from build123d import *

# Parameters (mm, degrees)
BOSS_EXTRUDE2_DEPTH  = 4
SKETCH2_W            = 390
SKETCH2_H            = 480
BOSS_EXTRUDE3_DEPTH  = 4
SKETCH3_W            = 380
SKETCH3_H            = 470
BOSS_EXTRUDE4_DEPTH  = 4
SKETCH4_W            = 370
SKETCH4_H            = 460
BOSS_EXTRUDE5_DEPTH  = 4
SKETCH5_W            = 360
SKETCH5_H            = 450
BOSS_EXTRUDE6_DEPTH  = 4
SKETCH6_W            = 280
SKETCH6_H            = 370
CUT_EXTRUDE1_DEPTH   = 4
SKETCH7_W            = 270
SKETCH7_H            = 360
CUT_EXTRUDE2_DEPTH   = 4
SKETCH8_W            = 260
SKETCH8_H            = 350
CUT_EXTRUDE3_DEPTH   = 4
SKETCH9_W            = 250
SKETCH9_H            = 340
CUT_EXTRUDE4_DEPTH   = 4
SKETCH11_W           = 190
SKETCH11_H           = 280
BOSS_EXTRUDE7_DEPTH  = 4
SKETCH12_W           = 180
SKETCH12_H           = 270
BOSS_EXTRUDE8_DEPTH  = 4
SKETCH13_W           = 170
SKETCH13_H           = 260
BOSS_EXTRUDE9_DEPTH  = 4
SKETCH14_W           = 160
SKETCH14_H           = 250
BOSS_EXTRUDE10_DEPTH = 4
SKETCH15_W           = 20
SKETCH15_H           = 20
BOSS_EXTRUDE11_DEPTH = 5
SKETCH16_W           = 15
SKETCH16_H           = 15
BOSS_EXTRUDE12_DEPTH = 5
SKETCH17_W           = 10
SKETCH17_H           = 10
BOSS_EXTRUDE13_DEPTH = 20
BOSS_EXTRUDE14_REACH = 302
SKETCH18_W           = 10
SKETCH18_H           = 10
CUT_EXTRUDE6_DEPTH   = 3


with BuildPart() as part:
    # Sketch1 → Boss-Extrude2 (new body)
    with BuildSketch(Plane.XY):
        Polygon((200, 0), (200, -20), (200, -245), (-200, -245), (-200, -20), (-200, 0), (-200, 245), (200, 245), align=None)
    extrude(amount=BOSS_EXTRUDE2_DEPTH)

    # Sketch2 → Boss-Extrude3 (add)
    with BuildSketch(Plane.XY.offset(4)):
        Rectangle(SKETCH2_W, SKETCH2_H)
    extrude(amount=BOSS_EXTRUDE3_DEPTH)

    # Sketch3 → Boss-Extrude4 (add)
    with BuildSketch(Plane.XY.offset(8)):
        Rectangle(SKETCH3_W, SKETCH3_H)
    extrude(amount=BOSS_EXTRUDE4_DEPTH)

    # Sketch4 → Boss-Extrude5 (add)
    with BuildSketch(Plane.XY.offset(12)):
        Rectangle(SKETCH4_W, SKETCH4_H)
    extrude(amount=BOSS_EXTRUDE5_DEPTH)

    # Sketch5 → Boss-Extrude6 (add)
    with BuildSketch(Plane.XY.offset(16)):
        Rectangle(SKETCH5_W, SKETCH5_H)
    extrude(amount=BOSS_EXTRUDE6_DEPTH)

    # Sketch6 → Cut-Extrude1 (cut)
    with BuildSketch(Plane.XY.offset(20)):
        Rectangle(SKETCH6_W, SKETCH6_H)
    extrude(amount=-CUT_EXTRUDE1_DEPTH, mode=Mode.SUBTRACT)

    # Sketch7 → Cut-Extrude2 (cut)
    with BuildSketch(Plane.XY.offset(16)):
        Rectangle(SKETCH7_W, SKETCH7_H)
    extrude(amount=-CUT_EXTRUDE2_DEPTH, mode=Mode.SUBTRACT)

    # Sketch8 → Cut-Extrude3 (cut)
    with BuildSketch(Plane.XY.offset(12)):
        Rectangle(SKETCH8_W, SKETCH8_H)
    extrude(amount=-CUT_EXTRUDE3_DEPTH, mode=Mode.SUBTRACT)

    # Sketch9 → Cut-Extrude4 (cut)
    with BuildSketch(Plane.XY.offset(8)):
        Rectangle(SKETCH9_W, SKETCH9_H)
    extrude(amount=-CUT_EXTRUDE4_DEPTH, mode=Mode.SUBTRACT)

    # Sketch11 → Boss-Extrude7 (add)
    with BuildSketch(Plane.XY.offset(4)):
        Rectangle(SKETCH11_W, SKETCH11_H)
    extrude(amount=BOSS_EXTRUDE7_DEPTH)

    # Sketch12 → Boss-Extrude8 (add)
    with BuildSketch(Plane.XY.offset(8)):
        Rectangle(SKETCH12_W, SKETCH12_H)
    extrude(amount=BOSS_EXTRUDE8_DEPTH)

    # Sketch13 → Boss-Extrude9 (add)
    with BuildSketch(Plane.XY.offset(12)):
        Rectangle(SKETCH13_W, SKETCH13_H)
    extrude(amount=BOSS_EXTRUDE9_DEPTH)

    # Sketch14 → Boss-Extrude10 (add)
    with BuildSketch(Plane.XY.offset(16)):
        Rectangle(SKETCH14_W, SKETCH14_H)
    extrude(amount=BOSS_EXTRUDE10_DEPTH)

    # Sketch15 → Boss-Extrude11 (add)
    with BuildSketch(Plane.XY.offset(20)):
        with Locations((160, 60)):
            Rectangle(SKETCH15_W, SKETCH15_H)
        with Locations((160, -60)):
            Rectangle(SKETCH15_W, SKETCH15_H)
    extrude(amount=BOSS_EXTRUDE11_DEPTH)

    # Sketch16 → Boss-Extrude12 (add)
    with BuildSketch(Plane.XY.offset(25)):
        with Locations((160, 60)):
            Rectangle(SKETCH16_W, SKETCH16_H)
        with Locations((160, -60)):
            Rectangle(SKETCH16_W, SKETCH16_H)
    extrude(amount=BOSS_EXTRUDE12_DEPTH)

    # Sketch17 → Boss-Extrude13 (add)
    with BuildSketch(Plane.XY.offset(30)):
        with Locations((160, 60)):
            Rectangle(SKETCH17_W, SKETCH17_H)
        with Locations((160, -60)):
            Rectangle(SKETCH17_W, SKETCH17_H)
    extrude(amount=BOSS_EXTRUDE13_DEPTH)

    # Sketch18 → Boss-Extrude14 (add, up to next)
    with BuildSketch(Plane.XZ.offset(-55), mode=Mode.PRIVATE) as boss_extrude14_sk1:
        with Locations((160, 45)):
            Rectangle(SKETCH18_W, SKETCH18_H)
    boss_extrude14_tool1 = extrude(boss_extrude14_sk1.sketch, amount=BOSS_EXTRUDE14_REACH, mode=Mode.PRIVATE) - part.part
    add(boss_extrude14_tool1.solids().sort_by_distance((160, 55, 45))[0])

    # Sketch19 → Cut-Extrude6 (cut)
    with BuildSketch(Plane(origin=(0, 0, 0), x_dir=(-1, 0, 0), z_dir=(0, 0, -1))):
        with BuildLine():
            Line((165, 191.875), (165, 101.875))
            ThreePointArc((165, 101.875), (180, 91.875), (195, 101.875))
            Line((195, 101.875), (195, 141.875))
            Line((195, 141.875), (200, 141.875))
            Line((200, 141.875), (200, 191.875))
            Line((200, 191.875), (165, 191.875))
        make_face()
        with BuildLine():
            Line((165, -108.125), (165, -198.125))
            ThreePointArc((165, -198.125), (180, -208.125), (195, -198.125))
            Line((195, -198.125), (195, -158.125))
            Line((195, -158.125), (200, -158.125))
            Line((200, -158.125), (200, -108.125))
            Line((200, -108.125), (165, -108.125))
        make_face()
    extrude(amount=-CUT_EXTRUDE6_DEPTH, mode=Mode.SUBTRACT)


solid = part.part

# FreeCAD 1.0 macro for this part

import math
import FreeCAD as App
import Part
import Sketcher
Q = App.Units.Quantity


def add_polygon(sketch, points):
    """Adds a closed chain of lines whose ends are joined by coincident constraints."""
    first, n = sketch.GeometryCount, len(points)
    for a, b in zip(points, points[1:] + points[:1]):
        sketch.addGeometry(Part.LineSegment(App.Vector(*a, 0), App.Vector(*b, 0)), False)
    for i in range(n):
        sketch.addConstraint(Sketcher.Constraint("Coincident", first + i, 2, first + (i + 1) % n, 1))

doc = App.newDocument("Part")
body = doc.addObject("PartDesign::Body", "Body")

# Sketch on XY plane
sketch1 = body.newObject("Sketcher::SketchObject", "Sketch")
sketch1.AttachmentSupport = (doc.getObject("XY_Plane"), [""])
sketch1.MapMode = "FlatFace"
add_polygon(sketch1, [(200, -245), (200, 245), (-200, 245), (-200, -245)])  # lines 0-3
sketch1.addConstraint([
    Sketcher.Constraint("Vertical", 0),
    Sketcher.Constraint("Horizontal", 1),
    Sketcher.Constraint("Vertical", 2),
    Sketcher.Constraint("Horizontal", 3),
    Sketcher.Constraint("Symmetric", 0, 2, 2, 2, -1, 1),
    Sketcher.Constraint("DistanceX", 1, 2, 1, 1, Q("400 mm")),
    Sketcher.Constraint("DistanceY", 0, 1, 0, 2, Q("490 mm")),
])
pad1 = body.newObject("PartDesign::Pad", "Pad")
pad1.Profile = sketch1
pad1.Length = 4

# Sketch on XY plane
sketch2 = body.newObject("Sketcher::SketchObject", "Sketch001")
sketch2.AttachmentSupport = (doc.getObject("XY_Plane"), [""])
sketch2.MapMode = "FlatFace"
sketch2.AttachmentOffset = App.Placement(App.Vector(0, 0, 4), App.Rotation())
add_polygon(sketch2, [(-195, 240), (-195, -240), (195, -240), (195, 240)])  # lines 0-3
sketch2.addConstraint([
    Sketcher.Constraint("Vertical", 0),
    Sketcher.Constraint("Horizontal", 1),
    Sketcher.Constraint("Vertical", 2),
    Sketcher.Constraint("Horizontal", 3),
    Sketcher.Constraint("Symmetric", 0, 2, 2, 2, -1, 1),
    Sketcher.Constraint("DistanceX", 1, 1, 1, 2, Q("390 mm")),
    Sketcher.Constraint("DistanceY", 0, 2, 0, 1, Q("480 mm")),
])
pad2 = body.newObject("PartDesign::Pad", "Pad001")
pad2.Profile = sketch2
pad2.Length = 4

# Sketch on XY plane
sketch3 = body.newObject("Sketcher::SketchObject", "Sketch002")
sketch3.AttachmentSupport = (doc.getObject("XY_Plane"), [""])
sketch3.MapMode = "FlatFace"
sketch3.AttachmentOffset = App.Placement(App.Vector(0, 0, 8), App.Rotation())
add_polygon(sketch3, [(-190, 235), (-190, -235), (190, -235), (190, 235)])  # lines 0-3
sketch3.addConstraint([
    Sketcher.Constraint("Vertical", 0),
    Sketcher.Constraint("Horizontal", 1),
    Sketcher.Constraint("Vertical", 2),
    Sketcher.Constraint("Horizontal", 3),
    Sketcher.Constraint("Symmetric", 0, 2, 2, 2, -1, 1),
    Sketcher.Constraint("DistanceX", 1, 1, 1, 2, Q("380 mm")),
    Sketcher.Constraint("DistanceY", 0, 2, 0, 1, Q("470 mm")),
])
pad3 = body.newObject("PartDesign::Pad", "Pad002")
pad3.Profile = sketch3
pad3.Length = 4

# Sketch on XY plane
sketch4 = body.newObject("Sketcher::SketchObject", "Sketch003")
sketch4.AttachmentSupport = (doc.getObject("XY_Plane"), [""])
sketch4.MapMode = "FlatFace"
sketch4.AttachmentOffset = App.Placement(App.Vector(0, 0, 12), App.Rotation())
add_polygon(sketch4, [(-185, 230), (-185, -230), (185, -230), (185, 230)])  # lines 0-3
sketch4.addConstraint([
    Sketcher.Constraint("Vertical", 0),
    Sketcher.Constraint("Horizontal", 1),
    Sketcher.Constraint("Vertical", 2),
    Sketcher.Constraint("Horizontal", 3),
    Sketcher.Constraint("Symmetric", 0, 2, 2, 2, -1, 1),
    Sketcher.Constraint("DistanceX", 1, 1, 1, 2, Q("370 mm")),
    Sketcher.Constraint("DistanceY", 0, 2, 0, 1, Q("460 mm")),
])
pad4 = body.newObject("PartDesign::Pad", "Pad003")
pad4.Profile = sketch4
pad4.Length = 4

# Sketch on XY plane
sketch5 = body.newObject("Sketcher::SketchObject", "Sketch004")
sketch5.AttachmentSupport = (doc.getObject("XY_Plane"), [""])
sketch5.MapMode = "FlatFace"
sketch5.AttachmentOffset = App.Placement(App.Vector(0, 0, 16), App.Rotation())
add_polygon(sketch5, [(-180, 225), (-180, -225), (180, -225), (180, 225)])  # lines 0-3
sketch5.addConstraint([
    Sketcher.Constraint("Vertical", 0),
    Sketcher.Constraint("Horizontal", 1),
    Sketcher.Constraint("Vertical", 2),
    Sketcher.Constraint("Horizontal", 3),
    Sketcher.Constraint("Symmetric", 0, 2, 2, 2, -1, 1),
    Sketcher.Constraint("DistanceX", 1, 1, 1, 2, Q("360 mm")),
    Sketcher.Constraint("DistanceY", 0, 2, 0, 1, Q("450 mm")),
])
pad5 = body.newObject("PartDesign::Pad", "Pad004")
pad5.Profile = sketch5
pad5.Length = 4

# Sketch on XY plane
sketch6 = body.newObject("Sketcher::SketchObject", "Sketch005")
sketch6.AttachmentSupport = (doc.getObject("XY_Plane"), [""])
sketch6.MapMode = "FlatFace"
sketch6.AttachmentOffset = App.Placement(App.Vector(0, 0, 20), App.Rotation())
add_polygon(sketch6, [(-140, 185), (-140, -185), (140, -185), (140, 185)])  # lines 0-3
sketch6.addConstraint([
    Sketcher.Constraint("Vertical", 0),
    Sketcher.Constraint("Horizontal", 1),
    Sketcher.Constraint("Vertical", 2),
    Sketcher.Constraint("Horizontal", 3),
    Sketcher.Constraint("Symmetric", 0, 2, 2, 2, -1, 1),
    Sketcher.Constraint("DistanceX", 1, 1, 1, 2, Q("280 mm")),
    Sketcher.Constraint("DistanceY", 0, 2, 0, 1, Q("370 mm")),
])
pocket1 = body.newObject("PartDesign::Pocket", "Pocket")
pocket1.Profile = sketch6
pocket1.Length = 4

# Sketch on XY plane
sketch7 = body.newObject("Sketcher::SketchObject", "Sketch006")
sketch7.AttachmentSupport = (doc.getObject("XY_Plane"), [""])
sketch7.MapMode = "FlatFace"
sketch7.AttachmentOffset = App.Placement(App.Vector(0, 0, 16), App.Rotation())
add_polygon(sketch7, [(-135, 180), (-135, -180), (135, -180), (135, 180)])  # lines 0-3
sketch7.addConstraint([
    Sketcher.Constraint("Vertical", 0),
    Sketcher.Constraint("Horizontal", 1),
    Sketcher.Constraint("Vertical", 2),
    Sketcher.Constraint("Horizontal", 3),
    Sketcher.Constraint("Symmetric", 0, 2, 2, 2, -1, 1),
    Sketcher.Constraint("DistanceX", 1, 1, 1, 2, Q("270 mm")),
    Sketcher.Constraint("DistanceY", 0, 2, 0, 1, Q("360 mm")),
])
pocket2 = body.newObject("PartDesign::Pocket", "Pocket001")
pocket2.Profile = sketch7
pocket2.Length = 4

# Sketch on XY plane
sketch8 = body.newObject("Sketcher::SketchObject", "Sketch007")
sketch8.AttachmentSupport = (doc.getObject("XY_Plane"), [""])
sketch8.MapMode = "FlatFace"
sketch8.AttachmentOffset = App.Placement(App.Vector(0, 0, 12), App.Rotation())
add_polygon(sketch8, [(-130, 175), (-130, -175), (130, -175), (130, 175)])  # lines 0-3
sketch8.addConstraint([
    Sketcher.Constraint("Vertical", 0),
    Sketcher.Constraint("Horizontal", 1),
    Sketcher.Constraint("Vertical", 2),
    Sketcher.Constraint("Horizontal", 3),
    Sketcher.Constraint("Symmetric", 0, 2, 2, 2, -1, 1),
    Sketcher.Constraint("DistanceX", 1, 1, 1, 2, Q("260 mm")),
    Sketcher.Constraint("DistanceY", 0, 2, 0, 1, Q("350 mm")),
])
pocket3 = body.newObject("PartDesign::Pocket", "Pocket002")
pocket3.Profile = sketch8
pocket3.Length = 4

# Sketch on XY plane
sketch9 = body.newObject("Sketcher::SketchObject", "Sketch008")
sketch9.AttachmentSupport = (doc.getObject("XY_Plane"), [""])
sketch9.MapMode = "FlatFace"
sketch9.AttachmentOffset = App.Placement(App.Vector(0, 0, 8), App.Rotation())
add_polygon(sketch9, [(-125, 170), (-125, -170), (125, -170), (125, 170)])  # lines 0-3
sketch9.addConstraint([
    Sketcher.Constraint("Vertical", 0),
    Sketcher.Constraint("Horizontal", 1),
    Sketcher.Constraint("Vertical", 2),
    Sketcher.Constraint("Horizontal", 3),
    Sketcher.Constraint("Symmetric", 0, 2, 2, 2, -1, 1),
    Sketcher.Constraint("DistanceX", 1, 1, 1, 2, Q("250 mm")),
    Sketcher.Constraint("DistanceY", 0, 2, 0, 1, Q("340 mm")),
])
pocket4 = body.newObject("PartDesign::Pocket", "Pocket003")
pocket4.Profile = sketch9
pocket4.Length = 4

# Sketch on XY plane
sketch10 = body.newObject("Sketcher::SketchObject", "Sketch009")
sketch10.AttachmentSupport = (doc.getObject("XY_Plane"), [""])
sketch10.MapMode = "FlatFace"
sketch10.AttachmentOffset = App.Placement(App.Vector(0, 0, 4), App.Rotation())
add_polygon(sketch10, [(-95, 140), (-95, -140), (95, -140), (95, 140)])  # lines 0-3
sketch10.addConstraint([
    Sketcher.Constraint("Vertical", 0),
    Sketcher.Constraint("Horizontal", 1),
    Sketcher.Constraint("Vertical", 2),
    Sketcher.Constraint("Horizontal", 3),
    Sketcher.Constraint("Symmetric", 0, 2, 2, 2, -1, 1),
    Sketcher.Constraint("DistanceX", 1, 1, 1, 2, Q("190 mm")),
    Sketcher.Constraint("DistanceY", 0, 2, 0, 1, Q("280 mm")),
])
pad6 = body.newObject("PartDesign::Pad", "Pad005")
pad6.Profile = sketch10
pad6.Length = 4

# Sketch on XY plane
sketch11 = body.newObject("Sketcher::SketchObject", "Sketch010")
sketch11.AttachmentSupport = (doc.getObject("XY_Plane"), [""])
sketch11.MapMode = "FlatFace"
sketch11.AttachmentOffset = App.Placement(App.Vector(0, 0, 8), App.Rotation())
add_polygon(sketch11, [(-90, 135), (-90, -135), (90, -135), (90, 135)])  # lines 0-3
sketch11.addConstraint([
    Sketcher.Constraint("Vertical", 0),
    Sketcher.Constraint("Horizontal", 1),
    Sketcher.Constraint("Vertical", 2),
    Sketcher.Constraint("Horizontal", 3),
    Sketcher.Constraint("Symmetric", 0, 2, 2, 2, -1, 1),
    Sketcher.Constraint("DistanceX", 1, 1, 1, 2, Q("180 mm")),
    Sketcher.Constraint("DistanceY", 0, 2, 0, 1, Q("270 mm")),
])
pad7 = body.newObject("PartDesign::Pad", "Pad006")
pad7.Profile = sketch11
pad7.Length = 4

# Sketch on XY plane
sketch12 = body.newObject("Sketcher::SketchObject", "Sketch011")
sketch12.AttachmentSupport = (doc.getObject("XY_Plane"), [""])
sketch12.MapMode = "FlatFace"
sketch12.AttachmentOffset = App.Placement(App.Vector(0, 0, 12), App.Rotation())
add_polygon(sketch12, [(-85, 130), (-85, -130), (85, -130), (85, 130)])  # lines 0-3
sketch12.addConstraint([
    Sketcher.Constraint("Vertical", 0),
    Sketcher.Constraint("Horizontal", 1),
    Sketcher.Constraint("Vertical", 2),
    Sketcher.Constraint("Horizontal", 3),
    Sketcher.Constraint("Symmetric", 0, 2, 2, 2, -1, 1),
    Sketcher.Constraint("DistanceX", 1, 1, 1, 2, Q("170 mm")),
    Sketcher.Constraint("DistanceY", 0, 2, 0, 1, Q("260 mm")),
])
pad8 = body.newObject("PartDesign::Pad", "Pad007")
pad8.Profile = sketch12
pad8.Length = 4

# Sketch on XY plane
sketch13 = body.newObject("Sketcher::SketchObject", "Sketch012")
sketch13.AttachmentSupport = (doc.getObject("XY_Plane"), [""])
sketch13.MapMode = "FlatFace"
sketch13.AttachmentOffset = App.Placement(App.Vector(0, 0, 16), App.Rotation())
add_polygon(sketch13, [(-80, 125), (-80, -125), (80, -125), (80, 125)])  # lines 0-3
sketch13.addConstraint([
    Sketcher.Constraint("Vertical", 0),
    Sketcher.Constraint("Horizontal", 1),
    Sketcher.Constraint("Vertical", 2),
    Sketcher.Constraint("Horizontal", 3),
    Sketcher.Constraint("Symmetric", 0, 2, 2, 2, -1, 1),
    Sketcher.Constraint("DistanceX", 1, 1, 1, 2, Q("160 mm")),
    Sketcher.Constraint("DistanceY", 0, 2, 0, 1, Q("250 mm")),
])
pad9 = body.newObject("PartDesign::Pad", "Pad008")
pad9.Profile = sketch13
pad9.Length = 4

# Sketch on XY plane
sketch14 = body.newObject("Sketcher::SketchObject", "Sketch013")
sketch14.AttachmentSupport = (doc.getObject("XY_Plane"), [""])
sketch14.MapMode = "FlatFace"
sketch14.AttachmentOffset = App.Placement(App.Vector(0, 0, 20), App.Rotation())
add_polygon(sketch14, [(150, 70), (150, 50), (170, 50), (170, 70)])  # lines 0-3
add_polygon(sketch14, [(150, -50), (150, -70), (170, -70), (170, -50)])  # lines 4-7
sketch14.addConstraint([
    Sketcher.Constraint("Vertical", 0),
    Sketcher.Constraint("Horizontal", 1),
    Sketcher.Constraint("Vertical", 2),
    Sketcher.Constraint("Horizontal", 3),
    Sketcher.Constraint("Vertical", 4),
    Sketcher.Constraint("Horizontal", 5),
    Sketcher.Constraint("Vertical", 6),
    Sketcher.Constraint("Horizontal", 7),
    Sketcher.Constraint("Symmetric", 3, 2, 4, 2, -1),
    Sketcher.Constraint("Symmetric", 1, 2, 6, 2, -1),
    Sketcher.Constraint("Equal", 7, 0),
    Sketcher.Constraint("DistanceX", 1, 1, 1, 2, Q("20 mm")),
    Sketcher.Constraint("DistanceX", -1, 1, 0, 2, Q("150 mm")),
    Sketcher.Constraint("DistanceY", -1, 1, 0, 2, Q("50 mm")),
])
pad10 = body.newObject("PartDesign::Pad", "Pad009")
pad10.Profile = sketch14
pad10.Length = 5

# Sketch on XY plane
sketch15 = body.newObject("Sketcher::SketchObject", "Sketch014")
sketch15.AttachmentSupport = (doc.getObject("XY_Plane"), [""])
sketch15.MapMode = "FlatFace"
sketch15.AttachmentOffset = App.Placement(App.Vector(0, 0, 25), App.Rotation())
add_polygon(sketch15, [(152.5, 67.5), (152.5, 52.5), (167.5, 52.5), (167.5, 67.5)])  # lines 0-3
add_polygon(sketch15, [(152.5, -52.5), (152.5, -67.5), (167.5, -67.5), (167.5, -52.5)])  # lines 4-7
sketch15.addConstraint([
    Sketcher.Constraint("Vertical", 0),
    Sketcher.Constraint("Horizontal", 1),
    Sketcher.Constraint("Vertical", 2),
    Sketcher.Constraint("Horizontal", 3),
    Sketcher.Constraint("Vertical", 4),
    Sketcher.Constraint("Horizontal", 5),
    Sketcher.Constraint("Vertical", 6),
    Sketcher.Constraint("Horizontal", 7),
    Sketcher.Constraint("Symmetric", 3, 2, 4, 2, -1),
    Sketcher.Constraint("Symmetric", 1, 2, 6, 2, -1),
    Sketcher.Constraint("Equal", 7, 0),
    Sketcher.Constraint("DistanceX", 1, 1, 1, 2, Q("15 mm")),
    Sketcher.Constraint("DistanceY", 4, 2, 0, 2, Q("120 mm")),
    Sketcher.Constraint("DistanceX", -1, 1, 0, 2, Q("152.5 mm")),
])
pad11 = body.newObject("PartDesign::Pad", "Pad010")
pad11.Profile = sketch15
pad11.Length = 5

# Sketch on XY plane
sketch16 = body.newObject("Sketcher::SketchObject", "Sketch015")
sketch16.AttachmentSupport = (doc.getObject("XY_Plane"), [""])
sketch16.MapMode = "FlatFace"
sketch16.AttachmentOffset = App.Placement(App.Vector(0, 0, 30), App.Rotation())
add_polygon(sketch16, [(155, 65), (155, 55), (165, 55), (165, 65)])  # lines 0-3
add_polygon(sketch16, [(155, -55), (155, -65), (165, -65), (165, -55)])  # lines 4-7
sketch16.addConstraint([
    Sketcher.Constraint("Vertical", 0),
    Sketcher.Constraint("Horizontal", 1),
    Sketcher.Constraint("Vertical", 2),
    Sketcher.Constraint("Horizontal", 3),
    Sketcher.Constraint("Vertical", 4),
    Sketcher.Constraint("Horizontal", 5),
    Sketcher.Constraint("Vertical", 6),
    Sketcher.Constraint("Horizontal", 7),
    Sketcher.Constraint("Symmetric", 3, 2, 4, 2, -1),
    Sketcher.Constraint("Symmetric", 1, 2, 6, 2, -1),
    Sketcher.Constraint("Equal", 7, 0),
    Sketcher.Constraint("DistanceX", 1, 1, 1, 2, Q("10 mm")),
    Sketcher.Constraint("DistanceX", -1, 1, 0, 2, Q("155 mm")),
    Sketcher.Constraint("DistanceY", -1, 1, 0, 2, Q("55 mm")),
])
pad12 = body.newObject("PartDesign::Pad", "Pad011")
pad12.Profile = sketch16
pad12.Length = 20

# Sketch on XZ plane
sketch17 = body.newObject("Sketcher::SketchObject", "Sketch016")
sketch17.AttachmentSupport = (doc.getObject("XZ_Plane"), [""])
sketch17.MapMode = "FlatFace"
sketch17.AttachmentOffset = App.Placement(App.Vector(0, 0, -55), App.Rotation())
add_polygon(sketch17, [(155, 50), (155, 40), (165, 40), (165, 50)])  # lines 0-3
sketch17.addConstraint([
    Sketcher.Constraint("Vertical", 0),
    Sketcher.Constraint("Horizontal", 1),
    Sketcher.Constraint("Vertical", 2),
    Sketcher.Constraint("Horizontal", 3),
    Sketcher.Constraint("Equal", 3, 0),
    Sketcher.Constraint("DistanceX", 1, 1, 1, 2, Q("10 mm")),
    Sketcher.Constraint("DistanceX", -1, 1, 0, 2, Q("155 mm")),
    Sketcher.Constraint("DistanceY", -1, 1, 0, 2, Q("40 mm")),
])
pad13 = body.newObject("PartDesign::Pad", "Pad012")
pad13.Profile = sketch17
pad13.Type = "UpToFirst"

# Sketch on XY plane
sketch18 = body.newObject("Sketcher::SketchObject", "Sketch017")
sketch18.AttachmentSupport = (doc.getObject("XY_Plane"), [""])
sketch18.MapMode = "FlatFace"
sketch18.addGeometry([
    Part.LineSegment(App.Vector(-165, 191.875, 0), App.Vector(-165, 101.875, 0)),  # 0
    Part.ArcOfCircle(Part.Circle(App.Vector(-180, 108.125, 0), App.Vector(0, 0, 1), 16.25), math.radians(-157.380135), math.radians(-22.619865)),  # 1
    Part.LineSegment(App.Vector(-195, 101.875, 0), App.Vector(-195, 141.875, 0)),  # 2
    Part.LineSegment(App.Vector(-195, 141.875, 0), App.Vector(-200, 141.875, 0)),  # 3
    Part.LineSegment(App.Vector(-200, 141.875, 0), App.Vector(-200, 191.875, 0)),  # 4
    Part.LineSegment(App.Vector(-200, 191.875, 0), App.Vector(-165, 191.875, 0)),  # 5
    Part.LineSegment(App.Vector(-165, -108.125, 0), App.Vector(-165, -198.125, 0)),  # 6
    Part.ArcOfCircle(Part.Circle(App.Vector(-180, -191.875, 0), App.Vector(0, 0, 1), 16.25), math.radians(-157.380135), math.radians(-22.619865)),  # 7
    Part.LineSegment(App.Vector(-195, -198.125, 0), App.Vector(-195, -158.125, 0)),  # 8
    Part.LineSegment(App.Vector(-195, -158.125, 0), App.Vector(-200, -158.125, 0)),  # 9
    Part.LineSegment(App.Vector(-200, -158.125, 0), App.Vector(-200, -108.125, 0)),  # 10
    Part.LineSegment(App.Vector(-200, -108.125, 0), App.Vector(-165, -108.125, 0)),  # 11
], False)
sketch18.addConstraint([
    Sketcher.Constraint("Coincident", 0, 2, 1, 2),
    Sketcher.Constraint("Coincident", 1, 1, 2, 1),
    Sketcher.Constraint("Coincident", 2, 2, 3, 1),
    Sketcher.Constraint("Coincident", 3, 2, 4, 1),
    Sketcher.Constraint("Coincident", 4, 2, 5, 1),
    Sketcher.Constraint("Coincident", 5, 2, 0, 1),
    Sketcher.Constraint("Coincident", 6, 2, 7, 2),
    Sketcher.Constraint("Coincident", 7, 1, 8, 1),
    Sketcher.Constraint("Coincident", 8, 2, 9, 1),
    Sketcher.Constraint("Coincident", 9, 2, 10, 1),
    Sketcher.Constraint("Coincident", 10, 2, 11, 1),
    Sketcher.Constraint("Coincident", 11, 2, 6, 1),
    Sketcher.Constraint("Vertical", 0),
    Sketcher.Constraint("Vertical", 2),
    Sketcher.Constraint("Horizontal", 3),
    Sketcher.Constraint("Vertical", 4),
    Sketcher.Constraint("Horizontal", 5),
    Sketcher.Constraint("Vertical", 6),
    Sketcher.Constraint("Vertical", 8),
    Sketcher.Constraint("Horizontal", 9),
    Sketcher.Constraint("Vertical", 10),
    Sketcher.Constraint("Horizontal", 11),
    Sketcher.Constraint("Equal", 1, 7),
    Sketcher.Constraint("Horizontal", 0, 2, 1, 1),
    Sketcher.Constraint("Horizontal", 6, 2, 7, 1),
    Sketcher.Constraint("Vertical", 1, 3, 7, 3),
    Sketcher.Constraint("Vertical", 5, 2, 6, 2),
    Sketcher.Constraint("Vertical", 4, 2, 9, 2),
    Sketcher.Constraint("Equal", 0, 6),
    Sketcher.Constraint("Equal", 2, 8),
    Sketcher.Constraint("DistanceX", 3, 2, 3, 1, Q("5 mm")),
    Sketcher.Constraint("DistanceX", 5, 1, 5, 2, Q("35 mm")),
    Sketcher.Constraint("DistanceY", 0, 2, 0, 1, Q("90 mm")),
    Sketcher.Constraint("DistanceY", 2, 1, 2, 2, Q("40 mm")),
    Sketcher.Constraint("Radius", 1, Q("16.25 mm")),
    Sketcher.Constraint("DistanceX", 1, 3, -1, 1, Q("180 mm")),
    Sketcher.Constraint("DistanceY", 7, 3, 1, 3, Q("300 mm")),
    Sketcher.Constraint("DistanceY", -1, 1, 1, 3, Q("108.125 mm")),
])
pocket5 = body.newObject("PartDesign::Pocket", "Pocket004")
pocket5.Profile = sketch18
pocket5.Length = 3
pocket5.Reversed = True

doc.recompute()
